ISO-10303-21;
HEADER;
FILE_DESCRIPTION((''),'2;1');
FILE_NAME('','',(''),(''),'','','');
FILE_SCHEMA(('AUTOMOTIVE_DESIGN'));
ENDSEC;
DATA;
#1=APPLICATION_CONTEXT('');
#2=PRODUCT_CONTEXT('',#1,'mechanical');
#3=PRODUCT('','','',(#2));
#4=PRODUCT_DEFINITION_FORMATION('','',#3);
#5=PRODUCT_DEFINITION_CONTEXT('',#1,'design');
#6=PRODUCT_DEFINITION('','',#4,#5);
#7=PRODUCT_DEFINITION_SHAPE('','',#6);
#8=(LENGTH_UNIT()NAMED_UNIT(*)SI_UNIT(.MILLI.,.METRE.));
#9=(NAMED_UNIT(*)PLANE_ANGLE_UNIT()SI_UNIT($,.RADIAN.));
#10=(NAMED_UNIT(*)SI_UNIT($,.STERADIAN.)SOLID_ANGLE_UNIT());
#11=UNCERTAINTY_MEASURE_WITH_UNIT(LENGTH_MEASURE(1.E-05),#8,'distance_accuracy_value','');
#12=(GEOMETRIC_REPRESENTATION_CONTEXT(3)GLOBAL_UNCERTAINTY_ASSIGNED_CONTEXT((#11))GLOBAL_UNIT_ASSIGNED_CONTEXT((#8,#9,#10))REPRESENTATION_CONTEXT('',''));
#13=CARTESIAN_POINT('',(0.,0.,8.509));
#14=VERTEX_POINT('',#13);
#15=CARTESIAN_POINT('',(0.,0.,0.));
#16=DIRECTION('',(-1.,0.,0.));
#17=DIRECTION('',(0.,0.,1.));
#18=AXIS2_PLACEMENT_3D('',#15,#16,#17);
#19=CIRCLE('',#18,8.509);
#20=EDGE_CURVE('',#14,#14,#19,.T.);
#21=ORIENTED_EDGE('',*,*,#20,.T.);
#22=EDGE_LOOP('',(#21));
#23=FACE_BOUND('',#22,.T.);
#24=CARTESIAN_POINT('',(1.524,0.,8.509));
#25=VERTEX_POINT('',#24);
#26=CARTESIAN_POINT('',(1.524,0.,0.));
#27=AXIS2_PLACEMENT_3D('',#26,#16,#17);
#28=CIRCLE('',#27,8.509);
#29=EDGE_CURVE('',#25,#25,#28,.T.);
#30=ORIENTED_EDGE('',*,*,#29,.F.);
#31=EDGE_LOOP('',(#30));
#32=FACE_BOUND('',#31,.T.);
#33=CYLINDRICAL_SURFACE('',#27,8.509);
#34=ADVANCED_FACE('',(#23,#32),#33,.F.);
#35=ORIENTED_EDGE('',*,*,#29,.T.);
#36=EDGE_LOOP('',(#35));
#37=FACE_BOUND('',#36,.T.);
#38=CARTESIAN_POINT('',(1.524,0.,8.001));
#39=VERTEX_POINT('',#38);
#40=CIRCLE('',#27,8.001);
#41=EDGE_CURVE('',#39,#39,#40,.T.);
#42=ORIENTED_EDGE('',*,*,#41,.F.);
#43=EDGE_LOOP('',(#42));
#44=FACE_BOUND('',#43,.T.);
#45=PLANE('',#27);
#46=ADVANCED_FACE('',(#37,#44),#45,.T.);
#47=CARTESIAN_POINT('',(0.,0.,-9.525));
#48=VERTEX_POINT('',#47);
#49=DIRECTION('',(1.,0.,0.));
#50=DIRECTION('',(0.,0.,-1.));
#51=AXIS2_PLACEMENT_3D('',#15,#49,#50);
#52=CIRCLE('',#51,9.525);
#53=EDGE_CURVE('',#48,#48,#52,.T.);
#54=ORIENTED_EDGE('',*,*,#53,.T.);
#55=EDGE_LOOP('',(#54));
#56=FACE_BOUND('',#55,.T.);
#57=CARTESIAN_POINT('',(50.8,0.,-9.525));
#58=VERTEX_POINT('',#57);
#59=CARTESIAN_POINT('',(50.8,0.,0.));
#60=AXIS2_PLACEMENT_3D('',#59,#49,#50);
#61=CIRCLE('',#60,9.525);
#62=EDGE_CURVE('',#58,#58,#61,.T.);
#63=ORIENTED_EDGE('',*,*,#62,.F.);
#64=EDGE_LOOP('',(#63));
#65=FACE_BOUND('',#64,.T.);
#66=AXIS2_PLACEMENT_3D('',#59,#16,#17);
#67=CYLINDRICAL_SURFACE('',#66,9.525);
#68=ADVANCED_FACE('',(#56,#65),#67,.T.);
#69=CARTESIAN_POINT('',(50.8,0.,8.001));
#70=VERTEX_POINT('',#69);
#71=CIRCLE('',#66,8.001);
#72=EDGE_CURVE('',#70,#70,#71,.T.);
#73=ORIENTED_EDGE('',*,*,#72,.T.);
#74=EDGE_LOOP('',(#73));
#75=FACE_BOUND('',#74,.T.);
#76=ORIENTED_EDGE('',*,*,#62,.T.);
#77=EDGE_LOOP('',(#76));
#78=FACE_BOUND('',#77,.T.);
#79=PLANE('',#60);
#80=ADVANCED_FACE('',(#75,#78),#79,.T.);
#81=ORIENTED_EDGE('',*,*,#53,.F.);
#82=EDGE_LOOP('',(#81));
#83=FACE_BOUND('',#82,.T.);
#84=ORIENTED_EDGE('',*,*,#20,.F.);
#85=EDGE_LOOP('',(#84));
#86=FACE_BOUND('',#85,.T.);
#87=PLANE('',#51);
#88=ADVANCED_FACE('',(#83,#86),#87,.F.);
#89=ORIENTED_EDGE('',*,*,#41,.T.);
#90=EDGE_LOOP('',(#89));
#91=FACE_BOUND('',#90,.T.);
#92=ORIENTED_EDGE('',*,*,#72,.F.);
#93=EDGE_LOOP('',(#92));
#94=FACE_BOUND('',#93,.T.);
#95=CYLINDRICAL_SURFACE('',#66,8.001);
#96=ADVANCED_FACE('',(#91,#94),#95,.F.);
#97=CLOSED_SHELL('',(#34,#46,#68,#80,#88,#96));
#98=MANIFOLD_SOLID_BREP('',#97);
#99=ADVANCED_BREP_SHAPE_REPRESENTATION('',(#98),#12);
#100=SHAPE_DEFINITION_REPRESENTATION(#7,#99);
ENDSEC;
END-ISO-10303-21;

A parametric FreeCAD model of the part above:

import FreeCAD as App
import Part
import Sketcher

V = App.Vector
Q = App.Units.Quantity

doc = App.newDocument("Part")
body = doc.addObject("PartDesign::Body", "Body")

sketch1 = body.newObject("Sketcher::SketchObject", "Sketch")
sketch1.AttachmentSupport = (doc.getObject("YZ_Plane"), [""])
sketch1.MapMode = "FlatFace"
sketch1.addGeometry(Part.Circle(V(0, 0, 0), V(0, 0, 1), 10), False)
sketch1.addConstraint([
    Sketcher.Constraint("Coincident", 0, 3, -1, 1),
    Sketcher.Constraint("Diameter", 0, Q("0.75 in")),
])
pad1 = body.newObject("PartDesign::Pad", "Pad")
pad1.Profile = sketch1
pad1.Length = Q("2 in")

sketch2 = body.newObject("Sketcher::SketchObject", "Sketch001")
sketch2.AttachmentSupport = (doc.getObject("YZ_Plane"), [""])
sketch2.MapMode = "FlatFace"
sketch2.addGeometry(Part.Circle(V(0, 0, 0), V(0, 0, 1), 9), False)
sketch2.addConstraint([
    Sketcher.Constraint("Coincident", 0, 3, -1, 1),
    Sketcher.Constraint("Diameter", 0, Q("0.67 in")),
])
pocket1 = body.newObject("PartDesign::Pocket", "Pocket")
pocket1.Profile = sketch2
pocket1.Length = Q("0.06 in")
pocket1.Reversed = True

sketch3 = body.newObject("Sketcher::SketchObject", "Sketch002")
sketch3.AttachmentSupport = (doc.getObject("YZ_Plane"), [""])
sketch3.MapMode = "FlatFace"
sketch3.AttachmentOffset = App.Placement(V(0, 0, 0.06 * 25.4), App.Rotation())
sketch3.addGeometry(Part.Circle(V(0, 0, 0), V(0, 0, 1), 8), False)
sketch3.addConstraint([
    Sketcher.Constraint("Coincident", 0, 3, -1, 1),
    Sketcher.Constraint("Diameter", 0, Q("0.63 in")),
])
pocket2 = body.newObject("PartDesign::Pocket", "Pocket001")
pocket2.Profile = sketch3
pocket2.Type = "ThroughAll"
pocket2.Reversed = True

doc.recompute()
